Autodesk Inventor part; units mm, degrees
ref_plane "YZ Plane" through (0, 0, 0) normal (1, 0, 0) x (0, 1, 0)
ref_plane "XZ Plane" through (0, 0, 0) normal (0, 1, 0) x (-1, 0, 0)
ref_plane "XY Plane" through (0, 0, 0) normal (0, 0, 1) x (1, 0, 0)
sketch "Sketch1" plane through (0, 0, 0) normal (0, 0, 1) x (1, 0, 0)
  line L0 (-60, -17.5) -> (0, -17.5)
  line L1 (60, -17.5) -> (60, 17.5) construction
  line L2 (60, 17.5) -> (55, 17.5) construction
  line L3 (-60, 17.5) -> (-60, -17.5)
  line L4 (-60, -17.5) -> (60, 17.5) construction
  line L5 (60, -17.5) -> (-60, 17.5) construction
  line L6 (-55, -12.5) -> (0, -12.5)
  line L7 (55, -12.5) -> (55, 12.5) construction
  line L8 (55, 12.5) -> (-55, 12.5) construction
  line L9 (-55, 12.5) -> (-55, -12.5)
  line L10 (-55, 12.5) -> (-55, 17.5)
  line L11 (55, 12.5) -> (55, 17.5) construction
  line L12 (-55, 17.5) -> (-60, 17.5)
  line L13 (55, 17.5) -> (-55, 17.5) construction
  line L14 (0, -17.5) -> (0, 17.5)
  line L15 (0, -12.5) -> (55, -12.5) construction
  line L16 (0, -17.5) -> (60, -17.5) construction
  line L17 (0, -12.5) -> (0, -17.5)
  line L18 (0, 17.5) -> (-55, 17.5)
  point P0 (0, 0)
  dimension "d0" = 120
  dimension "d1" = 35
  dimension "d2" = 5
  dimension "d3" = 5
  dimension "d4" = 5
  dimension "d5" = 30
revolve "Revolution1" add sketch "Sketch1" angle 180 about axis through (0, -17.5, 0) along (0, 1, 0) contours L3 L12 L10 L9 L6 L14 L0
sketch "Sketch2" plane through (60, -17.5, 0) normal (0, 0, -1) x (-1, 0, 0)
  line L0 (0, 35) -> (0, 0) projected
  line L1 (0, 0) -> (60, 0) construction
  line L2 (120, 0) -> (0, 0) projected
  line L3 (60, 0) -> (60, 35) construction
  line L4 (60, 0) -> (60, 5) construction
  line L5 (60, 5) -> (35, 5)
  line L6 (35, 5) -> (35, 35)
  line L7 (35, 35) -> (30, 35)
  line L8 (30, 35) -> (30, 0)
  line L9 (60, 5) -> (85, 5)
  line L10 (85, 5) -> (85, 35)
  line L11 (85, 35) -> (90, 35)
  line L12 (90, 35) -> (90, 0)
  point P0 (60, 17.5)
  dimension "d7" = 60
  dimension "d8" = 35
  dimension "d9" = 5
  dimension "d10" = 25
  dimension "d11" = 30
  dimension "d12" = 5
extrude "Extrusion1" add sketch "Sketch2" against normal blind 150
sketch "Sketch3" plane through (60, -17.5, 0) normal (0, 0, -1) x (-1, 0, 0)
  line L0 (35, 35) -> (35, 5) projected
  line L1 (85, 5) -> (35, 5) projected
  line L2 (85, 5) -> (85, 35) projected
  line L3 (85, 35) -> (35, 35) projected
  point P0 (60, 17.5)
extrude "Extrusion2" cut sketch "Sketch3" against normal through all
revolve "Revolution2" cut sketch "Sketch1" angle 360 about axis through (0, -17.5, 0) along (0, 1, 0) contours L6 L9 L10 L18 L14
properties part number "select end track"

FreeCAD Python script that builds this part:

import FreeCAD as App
import Part
import Sketcher

V = App.Vector


def add_polygon(sketch, points):
    """Adds a closed chain of lines whose ends are joined by coincident constraints."""
    first, n = sketch.GeometryCount, len(points)
    for a, b in zip(points, points[1:] + points[:1]):
        sketch.addGeometry(Part.LineSegment(App.Vector(*a, 0), App.Vector(*b, 0)), False)
    for i in range(n):
        sketch.addConstraint(Sketcher.Constraint("Coincident", first + i, 2, first + (i + 1) % n, 1))

doc = App.newDocument("Part")
params = doc.addObject("Spreadsheet::Sheet", "Params")
for row, (alias, value) in enumerate([
    ("sketch1_width", "5 mm"),
    ("sketch1_height", "35 mm"),
    ("sketch1_width2", "60 mm"),
    ("revolution_angle", "180 deg"),
    ("sketch2_width", "60 mm"),
    ("sketch2_width2", "5 mm"),
    ("sketch2_height", "35 mm"),
    ("sketch2_height2", "30 mm"),
    ("pad1_length", "150 mm"),
    ("sketch3_width", "50 mm"),
    ("sketch3_height", "30 mm"),
    ("sketch4_height", "30 mm"),
    ("sketch4_width", "55 mm"),
    ("groove_angle", "360 deg"),
], start=1):
    params.set(f"A{row}", alias)
    params.set(f"B{row}", "=" + value)
    params.setAlias(f"B{row}", alias)

body = doc.addObject("PartDesign::Body", "Body")

sketch1 = body.newObject("Sketcher::SketchObject", "Sketch")
sketch1.AttachmentSupport = (doc.getObject("XY_Plane"), [""])
sketch1.MapMode = "FlatFace"
add_polygon(sketch1, [(-60, 18), (-60, -18), (0, -18), (0, -12), (-55, -12), (-55, 18)])
sketch1.addConstraint(Sketcher.Constraint("Vertical", 0))
sketch1.addConstraint(Sketcher.Constraint("Horizontal", 1))
sketch1.addConstraint(Sketcher.Constraint("Vertical", 2))
sketch1.addConstraint(Sketcher.Constraint("Horizontal", 3))
sketch1.addConstraint(Sketcher.Constraint("Vertical", 4))
sketch1.addConstraint(Sketcher.Constraint("Horizontal", 5))
sketch1.addConstraint(Sketcher.Constraint("PointOnObject", 1, 2, -2))
sketch1.addConstraint(Sketcher.Constraint("Equal", 5, 2))
sketch1.addConstraint(Sketcher.Constraint("DistanceX", 5, 2, 5, 1, 5.0))
sketch1.addConstraint(Sketcher.Constraint("DistanceY", 0, 2, 0, 1, 35.0))
sketch1.addConstraint(Sketcher.Constraint("DistanceX", 1, 1, 1, 2, 60.0))
sketch1.addConstraint(Sketcher.Constraint("DistanceY", 0, 2, -1, 1, 17.5))
sketch1.setExpression("Constraints[14]", "Params.sketch1_width")
sketch1.setExpression("Constraints[15]", "Params.sketch1_height")
sketch1.setExpression("Constraints[16]", "Params.sketch1_width2")
revolution = body.newObject("PartDesign::Revolution", "Revolution")
revolution.Profile = sketch1
revolution.ReferenceAxis = (sketch1, ["V_Axis"])
revolution.setExpression("Angle", "Params.revolution_angle")

sketch2 = body.newObject("Sketcher::SketchObject", "Sketch001")
sketch2.AttachmentSupport = (doc.getObject("XY_Plane"), [""])
sketch2.MapMode = "FlatFace"
add_polygon(sketch2, [(30, -18), (-30, -18), (-30, 18), (-25, 18), (-25, -12), (25, -12), (25, 18), (30, 18)])
sketch2.addConstraint(Sketcher.Constraint("Horizontal", 0))
sketch2.addConstraint(Sketcher.Constraint("Vertical", 1))
sketch2.addConstraint(Sketcher.Constraint("Horizontal", 2))
sketch2.addConstraint(Sketcher.Constraint("Vertical", 3))
sketch2.addConstraint(Sketcher.Constraint("Horizontal", 4))
sketch2.addConstraint(Sketcher.Constraint("Vertical", 5))
sketch2.addConstraint(Sketcher.Constraint("Horizontal", 6))
sketch2.addConstraint(Sketcher.Constraint("Vertical", 7))
sketch2.addConstraint(Sketcher.Constraint("Symmetric", 0, 2, 6, 2, -1, 1))
sketch2.addConstraint(Sketcher.Constraint("Symmetric", 2, 2, 5, 2, -2))
sketch2.addConstraint(Sketcher.Constraint("DistanceX", 0, 2, 0, 1, 60.0))
sketch2.addConstraint(Sketcher.Constraint("DistanceX", 2, 1, 2, 2, 5.0))
sketch2.addConstraint(Sketcher.Constraint("DistanceY", 1, 1, 1, 2, 35.0))
sketch2.addConstraint(Sketcher.Constraint("DistanceY", 3, 2, 3, 1, 30.0))
sketch2.setExpression("Constraints[18]", "Params.sketch2_width")
sketch2.setExpression("Constraints[19]", "Params.sketch2_width2")
sketch2.setExpression("Constraints[20]", "Params.sketch2_height")
sketch2.setExpression("Constraints[21]", "Params.sketch2_height2")
pad1 = body.newObject("PartDesign::Pad", "Pad")
pad1.Profile = sketch2
pad1.setExpression("Length", "Params.pad1_length")

sketch3 = body.newObject("Sketcher::SketchObject", "Sketch002")
sketch3.AttachmentSupport = (doc.getObject("XY_Plane"), [""])
sketch3.MapMode = "FlatFace"
add_polygon(sketch3, [(-25, 18), (25, 18), (25, -12), (-25, -12)])
sketch3.addConstraint(Sketcher.Constraint("Horizontal", 0))
sketch3.addConstraint(Sketcher.Constraint("Vertical", 1))
sketch3.addConstraint(Sketcher.Constraint("Horizontal", 2))
sketch3.addConstraint(Sketcher.Constraint("Vertical", 3))
sketch3.addConstraint(Sketcher.Constraint("DistanceX", 0, 1, 0, 2, 50.0))
sketch3.addConstraint(Sketcher.Constraint("DistanceY", 1, 2, 1, 1, 30.0))
sketch3.addConstraint(Sketcher.Constraint("DistanceX", -1, 1, 0, 2, 25.0))
sketch3.addConstraint(Sketcher.Constraint("DistanceY", -1, 1, 0, 2, 17.5))
sketch3.setExpression("Constraints[8]", "Params.sketch3_width")
sketch3.setExpression("Constraints[9]", "Params.sketch3_height")
pocket1 = body.newObject("PartDesign::Pocket", "Pocket")
pocket1.Profile = sketch3
pocket1.Type = "ThroughAll"
pocket1.Reversed = True

sketch4 = body.newObject("Sketcher::SketchObject", "Sketch003")
sketch4.AttachmentSupport = (doc.getObject("XY_Plane"), [""])
sketch4.MapMode = "FlatFace"
add_polygon(sketch4, [(-55, -12), (0, -12), (0, 18), (-55, 18)])
sketch4.addConstraint(Sketcher.Constraint("Horizontal", 0))
sketch4.addConstraint(Sketcher.Constraint("Vertical", 1))
sketch4.addConstraint(Sketcher.Constraint("Horizontal", 2))
sketch4.addConstraint(Sketcher.Constraint("Vertical", 3))
sketch4.addConstraint(Sketcher.Constraint("PointOnObject", 0, 2, -2))
sketch4.addConstraint(Sketcher.Constraint("DistanceY", 1, 1, 1, 2, 30.0))
sketch4.addConstraint(Sketcher.Constraint("DistanceX", 0, 1, 0, 2, 55.0))
sketch4.addConstraint(Sketcher.Constraint("DistanceY", 0, 2, -1, 1, 12.5))
sketch4.setExpression("Constraints[9]", "Params.sketch4_height")
sketch4.setExpression("Constraints[10]", "Params.sketch4_width")
groove = body.newObject("PartDesign::Groove", "Groove")
groove.Profile = sketch4
groove.ReferenceAxis = (sketch4, ["V_Axis"])
groove.setExpression("Angle", "Params.groove_angle")

doc.recompute()
